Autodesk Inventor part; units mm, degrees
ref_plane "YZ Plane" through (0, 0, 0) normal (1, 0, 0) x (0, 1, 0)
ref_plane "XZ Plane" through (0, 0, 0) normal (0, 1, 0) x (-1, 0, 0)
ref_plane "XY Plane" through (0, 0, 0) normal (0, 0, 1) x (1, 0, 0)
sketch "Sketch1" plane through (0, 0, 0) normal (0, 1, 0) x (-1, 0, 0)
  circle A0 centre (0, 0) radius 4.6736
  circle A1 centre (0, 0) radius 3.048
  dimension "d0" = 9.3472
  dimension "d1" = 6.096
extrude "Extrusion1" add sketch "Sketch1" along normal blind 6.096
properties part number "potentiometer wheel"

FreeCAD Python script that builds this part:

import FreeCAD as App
import Part
import Sketcher
from FreeCAD import Vector
Q = App.Units.Quantity

doc = App.newDocument("Part")
params = doc.addObject("Spreadsheet::Sheet", "Params")
for row, (alias, value) in enumerate([
    ("sketch1_diameter", "0.24 in"),
    ("sketch1_diameter2", "0.368 in"),
    ("pad1_length", "0.24 in"),
], start=1):
    params.set(f"A{row}", alias)
    params.set(f"B{row}", "=" + value)
    params.setAlias(f"B{row}", alias)

body = doc.addObject("PartDesign::Body", "Body")

# Sketch on XZ plane
sketch1 = doc.addObject("Sketcher::SketchObject", "Sketch")
body.addObject(sketch1)
sketch1.AttachmentSupport = (doc.XZ_Plane, [""])
sketch1.MapMode = "FlatFace"
sketch1.addGeometry([
    Part.Circle(Vector(0, 0, 0), Vector(0, 0, 1), 4.6736),
    Part.Circle(Vector(0, 0, 0), Vector(0, 0, 1), 3.048),
], False)
sketch1.addConstraint([
    Sketcher.Constraint("Coincident", 0, 3, -1, 1),
    Sketcher.Constraint("Coincident", 1, 3, -1, 1),
    Sketcher.Constraint("Diameter", 1, Q("0.24 in")),
    Sketcher.Constraint("Diameter", 0, Q("0.368 in")),
])
sketch1.setExpression("Constraints[2]", "Params.sketch1_diameter")
sketch1.setExpression("Constraints[3]", "Params.sketch1_diameter2")
pad1 = doc.addObject("PartDesign::Pad", "Pad")
body.addObject(pad1)
pad1.Profile = sketch1
pad1.setExpression("Length", "Params.pad1_length")
pad1.Reversed = True

doc.recompute()
